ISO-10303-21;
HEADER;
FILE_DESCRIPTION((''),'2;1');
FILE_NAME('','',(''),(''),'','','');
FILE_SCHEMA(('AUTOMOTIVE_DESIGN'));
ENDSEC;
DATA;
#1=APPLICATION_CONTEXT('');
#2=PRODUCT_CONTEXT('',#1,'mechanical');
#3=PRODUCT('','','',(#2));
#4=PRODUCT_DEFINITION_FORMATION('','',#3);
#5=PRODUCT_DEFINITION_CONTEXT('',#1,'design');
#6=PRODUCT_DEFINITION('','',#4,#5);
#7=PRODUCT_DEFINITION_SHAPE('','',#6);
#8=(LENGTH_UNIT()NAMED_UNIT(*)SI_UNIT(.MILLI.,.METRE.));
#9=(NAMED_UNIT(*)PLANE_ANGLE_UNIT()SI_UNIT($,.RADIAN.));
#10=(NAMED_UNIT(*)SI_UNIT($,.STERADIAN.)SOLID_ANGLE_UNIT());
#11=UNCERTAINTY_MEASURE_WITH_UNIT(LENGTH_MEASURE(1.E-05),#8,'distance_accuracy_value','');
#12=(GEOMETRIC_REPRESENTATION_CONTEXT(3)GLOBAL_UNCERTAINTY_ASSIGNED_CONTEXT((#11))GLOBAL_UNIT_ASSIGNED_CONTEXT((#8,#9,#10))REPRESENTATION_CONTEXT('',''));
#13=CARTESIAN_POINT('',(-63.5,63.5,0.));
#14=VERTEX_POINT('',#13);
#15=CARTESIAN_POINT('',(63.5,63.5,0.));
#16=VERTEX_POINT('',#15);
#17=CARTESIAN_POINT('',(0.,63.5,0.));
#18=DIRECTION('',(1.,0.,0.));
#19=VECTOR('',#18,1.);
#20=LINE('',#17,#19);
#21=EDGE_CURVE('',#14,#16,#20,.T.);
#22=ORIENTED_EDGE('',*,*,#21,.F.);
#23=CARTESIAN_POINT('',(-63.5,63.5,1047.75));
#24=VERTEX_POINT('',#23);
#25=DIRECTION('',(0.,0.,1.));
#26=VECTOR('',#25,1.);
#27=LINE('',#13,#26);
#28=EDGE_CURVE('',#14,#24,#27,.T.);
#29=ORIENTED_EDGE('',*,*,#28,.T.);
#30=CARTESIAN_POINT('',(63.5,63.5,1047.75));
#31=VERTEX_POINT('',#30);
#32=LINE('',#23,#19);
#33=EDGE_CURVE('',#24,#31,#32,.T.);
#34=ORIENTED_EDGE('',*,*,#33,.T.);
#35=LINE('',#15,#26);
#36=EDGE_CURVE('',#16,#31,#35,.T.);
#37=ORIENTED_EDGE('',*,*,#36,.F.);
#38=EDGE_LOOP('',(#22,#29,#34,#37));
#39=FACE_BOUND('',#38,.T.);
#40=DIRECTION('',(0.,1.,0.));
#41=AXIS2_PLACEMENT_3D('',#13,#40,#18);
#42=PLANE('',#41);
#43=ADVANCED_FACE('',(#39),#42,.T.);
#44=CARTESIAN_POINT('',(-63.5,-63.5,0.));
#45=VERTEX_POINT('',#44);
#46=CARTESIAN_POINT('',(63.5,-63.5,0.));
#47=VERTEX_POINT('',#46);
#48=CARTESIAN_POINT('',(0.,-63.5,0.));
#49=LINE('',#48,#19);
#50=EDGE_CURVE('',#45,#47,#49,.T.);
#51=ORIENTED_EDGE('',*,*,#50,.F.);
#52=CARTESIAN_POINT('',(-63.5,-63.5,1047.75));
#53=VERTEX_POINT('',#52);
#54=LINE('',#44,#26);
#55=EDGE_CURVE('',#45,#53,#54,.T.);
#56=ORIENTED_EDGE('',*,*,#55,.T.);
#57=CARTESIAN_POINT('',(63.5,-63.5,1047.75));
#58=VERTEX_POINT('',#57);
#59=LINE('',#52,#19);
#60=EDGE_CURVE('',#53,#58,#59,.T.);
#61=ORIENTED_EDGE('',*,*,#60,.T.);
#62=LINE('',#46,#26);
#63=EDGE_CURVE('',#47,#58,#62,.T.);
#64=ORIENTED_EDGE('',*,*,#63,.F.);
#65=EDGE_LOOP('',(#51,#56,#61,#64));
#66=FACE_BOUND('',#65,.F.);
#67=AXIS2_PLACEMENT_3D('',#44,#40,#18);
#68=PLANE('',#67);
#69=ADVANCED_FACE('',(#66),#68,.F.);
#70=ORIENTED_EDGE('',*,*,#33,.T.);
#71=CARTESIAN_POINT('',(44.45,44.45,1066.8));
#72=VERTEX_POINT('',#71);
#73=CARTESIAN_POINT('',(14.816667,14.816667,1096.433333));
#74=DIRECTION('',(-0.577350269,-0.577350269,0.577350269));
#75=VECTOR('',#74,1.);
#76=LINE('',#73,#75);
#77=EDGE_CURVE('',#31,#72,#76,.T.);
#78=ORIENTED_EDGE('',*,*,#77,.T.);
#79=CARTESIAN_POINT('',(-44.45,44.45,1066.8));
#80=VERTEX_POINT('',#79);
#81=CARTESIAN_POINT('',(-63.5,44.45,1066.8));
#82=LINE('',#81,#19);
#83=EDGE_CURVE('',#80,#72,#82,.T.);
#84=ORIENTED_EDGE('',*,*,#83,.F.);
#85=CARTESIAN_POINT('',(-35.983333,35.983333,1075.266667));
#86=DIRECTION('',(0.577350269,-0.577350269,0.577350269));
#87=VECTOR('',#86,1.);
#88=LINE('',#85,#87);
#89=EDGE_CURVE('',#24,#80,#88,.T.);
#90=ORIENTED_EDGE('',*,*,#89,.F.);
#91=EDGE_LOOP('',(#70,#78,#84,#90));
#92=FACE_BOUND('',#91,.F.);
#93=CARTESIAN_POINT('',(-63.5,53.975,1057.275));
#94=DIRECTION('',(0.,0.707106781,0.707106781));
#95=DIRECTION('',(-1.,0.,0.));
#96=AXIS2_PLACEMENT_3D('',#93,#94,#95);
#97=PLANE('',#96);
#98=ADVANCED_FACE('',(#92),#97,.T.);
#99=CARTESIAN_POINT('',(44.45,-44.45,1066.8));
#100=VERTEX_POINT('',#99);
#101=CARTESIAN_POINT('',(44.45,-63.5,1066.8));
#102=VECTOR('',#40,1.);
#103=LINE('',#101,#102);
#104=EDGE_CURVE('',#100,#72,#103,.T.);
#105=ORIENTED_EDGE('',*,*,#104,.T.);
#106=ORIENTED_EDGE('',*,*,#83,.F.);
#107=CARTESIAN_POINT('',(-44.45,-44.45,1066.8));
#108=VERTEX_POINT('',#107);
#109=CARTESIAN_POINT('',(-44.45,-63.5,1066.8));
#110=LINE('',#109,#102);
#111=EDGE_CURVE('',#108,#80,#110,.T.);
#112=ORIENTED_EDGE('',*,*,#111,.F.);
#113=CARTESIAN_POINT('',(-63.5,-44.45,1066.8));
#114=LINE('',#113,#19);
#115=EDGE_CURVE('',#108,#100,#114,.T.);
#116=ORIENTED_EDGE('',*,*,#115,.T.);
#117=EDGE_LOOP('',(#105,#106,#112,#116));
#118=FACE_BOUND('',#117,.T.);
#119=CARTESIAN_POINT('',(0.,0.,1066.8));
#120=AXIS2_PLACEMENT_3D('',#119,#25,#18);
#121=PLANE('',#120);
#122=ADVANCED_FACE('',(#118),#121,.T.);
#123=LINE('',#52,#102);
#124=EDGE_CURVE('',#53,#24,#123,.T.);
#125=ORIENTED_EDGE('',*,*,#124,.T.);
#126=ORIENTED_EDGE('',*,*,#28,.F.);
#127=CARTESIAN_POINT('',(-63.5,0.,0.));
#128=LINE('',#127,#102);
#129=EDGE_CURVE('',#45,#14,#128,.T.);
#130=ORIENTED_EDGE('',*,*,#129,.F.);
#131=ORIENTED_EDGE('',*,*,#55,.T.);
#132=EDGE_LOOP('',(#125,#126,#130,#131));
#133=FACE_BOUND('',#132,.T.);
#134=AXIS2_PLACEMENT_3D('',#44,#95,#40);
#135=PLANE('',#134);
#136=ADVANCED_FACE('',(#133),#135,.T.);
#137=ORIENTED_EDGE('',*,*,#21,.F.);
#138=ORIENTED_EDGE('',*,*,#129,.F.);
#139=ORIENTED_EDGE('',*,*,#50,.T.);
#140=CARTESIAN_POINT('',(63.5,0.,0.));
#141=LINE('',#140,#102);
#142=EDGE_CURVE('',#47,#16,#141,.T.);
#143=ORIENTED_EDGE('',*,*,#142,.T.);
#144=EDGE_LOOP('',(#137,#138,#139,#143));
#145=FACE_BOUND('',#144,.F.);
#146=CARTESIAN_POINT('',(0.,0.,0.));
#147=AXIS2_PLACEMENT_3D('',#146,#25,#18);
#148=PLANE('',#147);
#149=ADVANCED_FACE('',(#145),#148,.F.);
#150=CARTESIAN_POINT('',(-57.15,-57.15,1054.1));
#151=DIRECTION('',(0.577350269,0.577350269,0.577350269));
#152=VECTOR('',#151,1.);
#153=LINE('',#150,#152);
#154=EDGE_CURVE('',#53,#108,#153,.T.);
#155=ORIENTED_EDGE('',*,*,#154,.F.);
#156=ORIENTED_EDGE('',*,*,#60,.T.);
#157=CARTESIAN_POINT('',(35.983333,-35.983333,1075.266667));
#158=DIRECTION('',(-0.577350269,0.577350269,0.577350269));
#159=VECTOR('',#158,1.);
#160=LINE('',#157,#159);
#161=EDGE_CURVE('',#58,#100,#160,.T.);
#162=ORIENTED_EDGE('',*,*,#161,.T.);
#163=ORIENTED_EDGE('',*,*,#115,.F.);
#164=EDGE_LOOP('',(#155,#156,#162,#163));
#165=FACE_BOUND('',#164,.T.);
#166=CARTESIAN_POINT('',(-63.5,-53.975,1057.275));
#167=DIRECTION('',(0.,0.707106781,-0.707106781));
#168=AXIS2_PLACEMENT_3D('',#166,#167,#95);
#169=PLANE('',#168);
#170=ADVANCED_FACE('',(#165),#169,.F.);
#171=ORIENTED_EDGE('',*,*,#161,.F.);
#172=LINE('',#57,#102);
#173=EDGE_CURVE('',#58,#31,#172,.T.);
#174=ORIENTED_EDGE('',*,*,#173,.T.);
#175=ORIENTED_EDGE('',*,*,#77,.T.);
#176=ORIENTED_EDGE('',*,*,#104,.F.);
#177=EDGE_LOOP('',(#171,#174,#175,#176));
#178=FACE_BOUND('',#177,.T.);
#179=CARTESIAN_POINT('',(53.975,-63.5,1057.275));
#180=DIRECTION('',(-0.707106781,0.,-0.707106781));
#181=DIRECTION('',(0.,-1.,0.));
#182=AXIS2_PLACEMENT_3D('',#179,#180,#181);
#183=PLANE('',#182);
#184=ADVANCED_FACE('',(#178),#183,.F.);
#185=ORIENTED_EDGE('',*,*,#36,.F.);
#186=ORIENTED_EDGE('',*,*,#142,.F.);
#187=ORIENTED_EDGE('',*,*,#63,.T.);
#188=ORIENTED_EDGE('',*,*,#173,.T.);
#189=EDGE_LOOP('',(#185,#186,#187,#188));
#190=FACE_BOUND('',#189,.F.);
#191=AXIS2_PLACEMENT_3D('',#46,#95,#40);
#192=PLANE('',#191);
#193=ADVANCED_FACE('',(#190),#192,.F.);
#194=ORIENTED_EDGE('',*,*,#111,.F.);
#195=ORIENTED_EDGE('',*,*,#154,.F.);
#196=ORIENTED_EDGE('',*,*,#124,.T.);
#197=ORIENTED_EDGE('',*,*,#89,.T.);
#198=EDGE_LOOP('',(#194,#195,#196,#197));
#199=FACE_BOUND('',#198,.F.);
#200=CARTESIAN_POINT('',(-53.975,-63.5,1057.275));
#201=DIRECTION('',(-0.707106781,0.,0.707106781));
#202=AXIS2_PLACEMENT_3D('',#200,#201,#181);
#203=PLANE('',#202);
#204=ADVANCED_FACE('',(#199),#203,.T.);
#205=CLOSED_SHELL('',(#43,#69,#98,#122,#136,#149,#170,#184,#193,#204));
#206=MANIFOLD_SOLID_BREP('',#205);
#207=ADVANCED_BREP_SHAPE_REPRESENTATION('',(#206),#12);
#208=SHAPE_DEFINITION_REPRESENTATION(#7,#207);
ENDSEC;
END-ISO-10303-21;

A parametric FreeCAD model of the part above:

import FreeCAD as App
import Part
import Sketcher
from FreeCAD import Vector
Q = App.Units.Quantity


def edges_at(feature, points):
    """Names of the edges that pass closest to the given points."""
    edges = feature.Shape.Edges
    near = lambda p: min(range(len(edges)), key=lambda i: edges[i].distToShape(Part.Vertex(*p))[0])
    return sorted({f"Edge{near(p) + 1}" for p in points})

doc = App.newDocument("Part")
body = doc.addObject("PartDesign::Body", "Body")

# Sketch on XY plane
sketch1 = body.newObject("Sketcher::SketchObject", "Sketch")
sketch1.AttachmentSupport = (doc.getObject("XY_Plane"), [""])
sketch1.MapMode = "FlatFace"
sketch1.addGeometry([
    Part.LineSegment(Vector(-64, 64, 0), Vector(-64, -64, 0)),
    Part.LineSegment(Vector(-64, -64, 0), Vector(64, -64, 0)),
    Part.LineSegment(Vector(64, -64, 0), Vector(64, 64, 0)),
    Part.LineSegment(Vector(64, 64, 0), Vector(-64, 64, 0)),
], False)
sketch1.addConstraint([
    Sketcher.Constraint("Coincident", 0, 2, 1, 1),
    Sketcher.Constraint("Coincident", 1, 2, 2, 1),
    Sketcher.Constraint("Coincident", 2, 2, 3, 1),
    Sketcher.Constraint("Coincident", 3, 2, 0, 1),
    Sketcher.Constraint("Vertical", 0),
    Sketcher.Constraint("Horizontal", 1),
    Sketcher.Constraint("Vertical", 2),
    Sketcher.Constraint("Horizontal", 3),
    Sketcher.Constraint("Symmetric", 0, 2, 2, 2, -1, 1),
    Sketcher.Constraint("Equal", 3, 0),
    Sketcher.Constraint("DistanceX", 1, 1, 1, 2, Q("5 in")),
])
pad1 = body.newObject("PartDesign::Pad", "Pad")
pad1.Profile = sketch1
pad1.Length = Q("42 in")
doc.recompute()

chamfer = body.newObject("PartDesign::Chamfer", "Chamfer")
chamfer.Base = (pad1, edges_at(pad1, [
    (0, -63.5, 1066.8),
    (-63.5, 0, 1066.8),
    (0, 63.5, 1066.8),
    (63.5, 0, 1066.8),
]))
chamfer.Size = Q("0.75 in")

doc.recompute()
